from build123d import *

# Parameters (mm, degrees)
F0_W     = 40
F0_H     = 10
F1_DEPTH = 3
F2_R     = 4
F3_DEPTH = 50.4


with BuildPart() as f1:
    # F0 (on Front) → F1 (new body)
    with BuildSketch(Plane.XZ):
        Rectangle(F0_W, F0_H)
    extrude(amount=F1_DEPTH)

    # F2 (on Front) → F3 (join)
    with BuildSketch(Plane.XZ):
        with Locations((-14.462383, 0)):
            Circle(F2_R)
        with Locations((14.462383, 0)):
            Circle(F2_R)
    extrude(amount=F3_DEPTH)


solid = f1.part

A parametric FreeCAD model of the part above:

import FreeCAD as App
import Part
import Sketcher

doc = App.newDocument("Part")
body = doc.addObject("PartDesign::Body", "Body")

# Sketch on XZ plane
sketch1 = body.newObject("Sketcher::SketchObject", "Sketch")
sketch1.AttachmentSupport = (doc.getObject("XZ_Plane"), [""])
sketch1.MapMode = "FlatFace"
sketch1.addGeometry([
    Part.LineSegment(App.Vector(-20, 5, 0), App.Vector(-20, -5, 0)),
    Part.LineSegment(App.Vector(-20, -5, 0), App.Vector(20, -5, 0)),
    Part.LineSegment(App.Vector(20, -5, 0), App.Vector(20, 5, 0)),
    Part.LineSegment(App.Vector(20, 5, 0), App.Vector(-20, 5, 0)),
], False)
sketch1.addConstraint([
    Sketcher.Constraint("Coincident", 0, 2, 1, 1),
    Sketcher.Constraint("Coincident", 1, 2, 2, 1),
    Sketcher.Constraint("Coincident", 2, 2, 3, 1),
    Sketcher.Constraint("Coincident", 3, 2, 0, 1),
    Sketcher.Constraint("Vertical", 0),
    Sketcher.Constraint("Horizontal", 1),
    Sketcher.Constraint("Vertical", 2),
    Sketcher.Constraint("Horizontal", 3),
    Sketcher.Constraint("Symmetric", 0, 2, 2, 2, -1, 1),
    Sketcher.Constraint("DistanceX", 1, 1, 1, 2, 40.0),
    Sketcher.Constraint("DistanceY", 0, 2, 0, 1, 10.0),
])
pad1 = body.newObject("PartDesign::Pad", "Pad")
pad1.Profile = sketch1
pad1.Length = 3

# Sketch on XZ plane
sketch2 = body.newObject("Sketcher::SketchObject", "Sketch001")
sketch2.AttachmentSupport = (doc.getObject("XZ_Plane"), [""])
sketch2.MapMode = "FlatFace"
sketch2.addGeometry([
    Part.Circle(App.Vector(-14.5, 0, 0), App.Vector(0, 0, 1), 4),
    Part.Circle(App.Vector(14.5, 0, 0), App.Vector(0, 0, 1), 4),
], False)
sketch2.addConstraint([
    Sketcher.Constraint("Equal", 0, 1),
    Sketcher.Constraint("Symmetric", 0, 3, 1, 3, -1, 1),
    Sketcher.Constraint("PointOnObject", 0, 3, -1),
    Sketcher.Constraint("Diameter", 0, 8.0),
    Sketcher.Constraint("DistanceX", 0, 3, -1, 1, 14.462383),
])
pad2 = body.newObject("PartDesign::Pad", "Pad001")
pad2.Profile = sketch2
pad2.Length = 50.4

doc.recompute()
